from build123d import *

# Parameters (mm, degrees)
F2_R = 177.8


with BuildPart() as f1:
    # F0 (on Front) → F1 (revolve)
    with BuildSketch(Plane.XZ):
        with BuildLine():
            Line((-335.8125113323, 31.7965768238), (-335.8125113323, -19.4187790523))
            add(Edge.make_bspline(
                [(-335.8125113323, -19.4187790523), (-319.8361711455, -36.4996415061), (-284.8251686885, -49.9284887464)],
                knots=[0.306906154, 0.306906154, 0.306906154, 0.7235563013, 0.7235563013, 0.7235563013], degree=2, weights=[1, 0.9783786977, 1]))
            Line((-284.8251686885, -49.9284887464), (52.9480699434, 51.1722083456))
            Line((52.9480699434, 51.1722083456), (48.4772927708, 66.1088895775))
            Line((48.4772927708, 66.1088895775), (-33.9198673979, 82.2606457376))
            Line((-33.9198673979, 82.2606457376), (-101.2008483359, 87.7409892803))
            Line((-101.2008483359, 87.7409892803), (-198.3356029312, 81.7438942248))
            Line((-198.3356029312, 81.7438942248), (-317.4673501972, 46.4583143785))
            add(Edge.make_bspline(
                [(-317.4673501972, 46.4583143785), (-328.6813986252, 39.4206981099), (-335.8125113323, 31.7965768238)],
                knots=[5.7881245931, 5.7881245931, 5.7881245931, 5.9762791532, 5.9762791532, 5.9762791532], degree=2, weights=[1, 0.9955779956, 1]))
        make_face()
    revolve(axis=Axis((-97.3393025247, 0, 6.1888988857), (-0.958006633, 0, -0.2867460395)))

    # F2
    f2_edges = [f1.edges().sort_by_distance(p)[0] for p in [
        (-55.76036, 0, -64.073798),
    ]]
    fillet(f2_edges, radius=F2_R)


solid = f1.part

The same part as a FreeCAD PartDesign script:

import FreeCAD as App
import Part
import Sketcher
from FreeCAD import Vector
Q = App.Units.Quantity


def edges_at(feature, points):
    """Names of the edges that pass closest to the given points."""
    edges = feature.Shape.Edges
    near = lambda p: min(range(len(edges)), key=lambda i: edges[i].distToShape(Part.Vertex(*p))[0])
    return sorted({f"Edge{near(p) + 1}" for p in points})

doc = App.newDocument("Part")
body = doc.addObject("PartDesign::Body", "Body")

# Sketch on XZ plane
sketch1 = body.newObject("Sketcher::SketchObject", "Sketch")
sketch1.AttachmentSupport = (doc.getObject("XZ_Plane"), [""])
sketch1.MapMode = "FlatFace"
sketch1.addGeometry([
    Part.LineSegment(Vector(-335.812511, 31.796577, 0), Vector(-335.812511, -19.418779, 0)),  # 0
    Part.BSplineCurve([Vector(-335.812511, -19.418779, 0), Vector(-319.836171, -36.499642, 0), Vector(-284.825169, -49.928489, 0)], [3, 3], [0.306906154, 0.723556301], False, 2, [1, 0.978378698, 1], False),  # 1
    Part.LineSegment(Vector(-284.825169, -49.928489, 0), Vector(52.94807, 51.172208, 0)),  # 2
    Part.LineSegment(Vector(52.94807, 51.172208, 0), Vector(48.477293, 66.10889, 0)),  # 3
    Part.LineSegment(Vector(48.477293, 66.10889, 0), Vector(-33.919867, 82.260646, 0)),  # 4
    Part.LineSegment(Vector(-33.919867, 82.260646, 0), Vector(-101.200848, 87.740989, 0)),  # 5
    Part.LineSegment(Vector(-101.200848, 87.740989, 0), Vector(-198.335603, 81.743894, 0)),  # 6
    Part.LineSegment(Vector(-198.335603, 81.743894, 0), Vector(-317.46735, 46.458314, 0)),  # 7
    Part.BSplineCurve([Vector(-317.46735, 46.458314, 0), Vector(-328.681399, 39.420698, 0), Vector(-335.812511, 31.796577, 0)], [3, 3], [5.788124593, 5.976279153], False, 2, [1, 0.995577996, 1], False),  # 8
], False)
sketch1.addGeometry(Part.LineSegment(Vector(52.94807, 51.172208, 0), Vector(-323.239006, -61.426338, 0)), True)  # axis
sketch1.addConstraint([
    Sketcher.Constraint("Block", 1),
    Sketcher.Constraint("Block", 8),
    Sketcher.Constraint("Coincident", 0, 2, 1, 1),
    Sketcher.Constraint("Coincident", 1, 2, 2, 1),
    Sketcher.Constraint("Coincident", 2, 2, 3, 1),
    Sketcher.Constraint("Coincident", 3, 2, 4, 1),
    Sketcher.Constraint("Coincident", 4, 2, 5, 1),
    Sketcher.Constraint("Coincident", 5, 2, 6, 1),
    Sketcher.Constraint("Coincident", 6, 2, 7, 1),
    Sketcher.Constraint("Coincident", 7, 2, 8, 1),
    Sketcher.Constraint("Coincident", 8, 2, 0, 1),
    Sketcher.Constraint("Coincident", 9, 1, 2, 2),
    Sketcher.Constraint("Distance", 9, 392.676901),
    Sketcher.Constraint("DistanceY", 3, 2, 5, 2, 21.6321),
    Sketcher.Constraint("DistanceX", 7, 2, 5, 2, 216.266502),
    Sketcher.Constraint("Distance", 5, 67.503811),
    Sketcher.Constraint("Distance", 6, 97.319709),
    Sketcher.Constraint("DistanceX", -1, 1, 2, 2, 52.94807),
    Sketcher.Constraint("DistanceY", -1, 1, 2, 2, 51.172208),
    Sketcher.Constraint("DistanceY", -1, 1, 3, 2, 66.10889),
    Sketcher.Constraint("DistanceX", 4, 2, 3, 2, 82.39716),
    Sketcher.Constraint("DistanceX", 5, 2, 4, 2, 67.280981),
    Sketcher.Constraint("DistanceY", 6, 2, 4, 2, 0.516752),
    Sketcher.Constraint("DistanceY", 9, 2, 0, 2, 42.007559),
])
revolution = body.newObject("PartDesign::Revolution", "Revolution")
revolution.Profile = sketch1
revolution.ReferenceAxis = (sketch1, ["Axis0"])
revolution.Angle = 360
doc.recompute()

fillet = body.newObject("PartDesign::Fillet", "Fillet")
fillet.Base = (revolution, edges_at(revolution, [(-55.76, 0, -64.074)]))
fillet.Radius = Q("7 in")

doc.recompute()
